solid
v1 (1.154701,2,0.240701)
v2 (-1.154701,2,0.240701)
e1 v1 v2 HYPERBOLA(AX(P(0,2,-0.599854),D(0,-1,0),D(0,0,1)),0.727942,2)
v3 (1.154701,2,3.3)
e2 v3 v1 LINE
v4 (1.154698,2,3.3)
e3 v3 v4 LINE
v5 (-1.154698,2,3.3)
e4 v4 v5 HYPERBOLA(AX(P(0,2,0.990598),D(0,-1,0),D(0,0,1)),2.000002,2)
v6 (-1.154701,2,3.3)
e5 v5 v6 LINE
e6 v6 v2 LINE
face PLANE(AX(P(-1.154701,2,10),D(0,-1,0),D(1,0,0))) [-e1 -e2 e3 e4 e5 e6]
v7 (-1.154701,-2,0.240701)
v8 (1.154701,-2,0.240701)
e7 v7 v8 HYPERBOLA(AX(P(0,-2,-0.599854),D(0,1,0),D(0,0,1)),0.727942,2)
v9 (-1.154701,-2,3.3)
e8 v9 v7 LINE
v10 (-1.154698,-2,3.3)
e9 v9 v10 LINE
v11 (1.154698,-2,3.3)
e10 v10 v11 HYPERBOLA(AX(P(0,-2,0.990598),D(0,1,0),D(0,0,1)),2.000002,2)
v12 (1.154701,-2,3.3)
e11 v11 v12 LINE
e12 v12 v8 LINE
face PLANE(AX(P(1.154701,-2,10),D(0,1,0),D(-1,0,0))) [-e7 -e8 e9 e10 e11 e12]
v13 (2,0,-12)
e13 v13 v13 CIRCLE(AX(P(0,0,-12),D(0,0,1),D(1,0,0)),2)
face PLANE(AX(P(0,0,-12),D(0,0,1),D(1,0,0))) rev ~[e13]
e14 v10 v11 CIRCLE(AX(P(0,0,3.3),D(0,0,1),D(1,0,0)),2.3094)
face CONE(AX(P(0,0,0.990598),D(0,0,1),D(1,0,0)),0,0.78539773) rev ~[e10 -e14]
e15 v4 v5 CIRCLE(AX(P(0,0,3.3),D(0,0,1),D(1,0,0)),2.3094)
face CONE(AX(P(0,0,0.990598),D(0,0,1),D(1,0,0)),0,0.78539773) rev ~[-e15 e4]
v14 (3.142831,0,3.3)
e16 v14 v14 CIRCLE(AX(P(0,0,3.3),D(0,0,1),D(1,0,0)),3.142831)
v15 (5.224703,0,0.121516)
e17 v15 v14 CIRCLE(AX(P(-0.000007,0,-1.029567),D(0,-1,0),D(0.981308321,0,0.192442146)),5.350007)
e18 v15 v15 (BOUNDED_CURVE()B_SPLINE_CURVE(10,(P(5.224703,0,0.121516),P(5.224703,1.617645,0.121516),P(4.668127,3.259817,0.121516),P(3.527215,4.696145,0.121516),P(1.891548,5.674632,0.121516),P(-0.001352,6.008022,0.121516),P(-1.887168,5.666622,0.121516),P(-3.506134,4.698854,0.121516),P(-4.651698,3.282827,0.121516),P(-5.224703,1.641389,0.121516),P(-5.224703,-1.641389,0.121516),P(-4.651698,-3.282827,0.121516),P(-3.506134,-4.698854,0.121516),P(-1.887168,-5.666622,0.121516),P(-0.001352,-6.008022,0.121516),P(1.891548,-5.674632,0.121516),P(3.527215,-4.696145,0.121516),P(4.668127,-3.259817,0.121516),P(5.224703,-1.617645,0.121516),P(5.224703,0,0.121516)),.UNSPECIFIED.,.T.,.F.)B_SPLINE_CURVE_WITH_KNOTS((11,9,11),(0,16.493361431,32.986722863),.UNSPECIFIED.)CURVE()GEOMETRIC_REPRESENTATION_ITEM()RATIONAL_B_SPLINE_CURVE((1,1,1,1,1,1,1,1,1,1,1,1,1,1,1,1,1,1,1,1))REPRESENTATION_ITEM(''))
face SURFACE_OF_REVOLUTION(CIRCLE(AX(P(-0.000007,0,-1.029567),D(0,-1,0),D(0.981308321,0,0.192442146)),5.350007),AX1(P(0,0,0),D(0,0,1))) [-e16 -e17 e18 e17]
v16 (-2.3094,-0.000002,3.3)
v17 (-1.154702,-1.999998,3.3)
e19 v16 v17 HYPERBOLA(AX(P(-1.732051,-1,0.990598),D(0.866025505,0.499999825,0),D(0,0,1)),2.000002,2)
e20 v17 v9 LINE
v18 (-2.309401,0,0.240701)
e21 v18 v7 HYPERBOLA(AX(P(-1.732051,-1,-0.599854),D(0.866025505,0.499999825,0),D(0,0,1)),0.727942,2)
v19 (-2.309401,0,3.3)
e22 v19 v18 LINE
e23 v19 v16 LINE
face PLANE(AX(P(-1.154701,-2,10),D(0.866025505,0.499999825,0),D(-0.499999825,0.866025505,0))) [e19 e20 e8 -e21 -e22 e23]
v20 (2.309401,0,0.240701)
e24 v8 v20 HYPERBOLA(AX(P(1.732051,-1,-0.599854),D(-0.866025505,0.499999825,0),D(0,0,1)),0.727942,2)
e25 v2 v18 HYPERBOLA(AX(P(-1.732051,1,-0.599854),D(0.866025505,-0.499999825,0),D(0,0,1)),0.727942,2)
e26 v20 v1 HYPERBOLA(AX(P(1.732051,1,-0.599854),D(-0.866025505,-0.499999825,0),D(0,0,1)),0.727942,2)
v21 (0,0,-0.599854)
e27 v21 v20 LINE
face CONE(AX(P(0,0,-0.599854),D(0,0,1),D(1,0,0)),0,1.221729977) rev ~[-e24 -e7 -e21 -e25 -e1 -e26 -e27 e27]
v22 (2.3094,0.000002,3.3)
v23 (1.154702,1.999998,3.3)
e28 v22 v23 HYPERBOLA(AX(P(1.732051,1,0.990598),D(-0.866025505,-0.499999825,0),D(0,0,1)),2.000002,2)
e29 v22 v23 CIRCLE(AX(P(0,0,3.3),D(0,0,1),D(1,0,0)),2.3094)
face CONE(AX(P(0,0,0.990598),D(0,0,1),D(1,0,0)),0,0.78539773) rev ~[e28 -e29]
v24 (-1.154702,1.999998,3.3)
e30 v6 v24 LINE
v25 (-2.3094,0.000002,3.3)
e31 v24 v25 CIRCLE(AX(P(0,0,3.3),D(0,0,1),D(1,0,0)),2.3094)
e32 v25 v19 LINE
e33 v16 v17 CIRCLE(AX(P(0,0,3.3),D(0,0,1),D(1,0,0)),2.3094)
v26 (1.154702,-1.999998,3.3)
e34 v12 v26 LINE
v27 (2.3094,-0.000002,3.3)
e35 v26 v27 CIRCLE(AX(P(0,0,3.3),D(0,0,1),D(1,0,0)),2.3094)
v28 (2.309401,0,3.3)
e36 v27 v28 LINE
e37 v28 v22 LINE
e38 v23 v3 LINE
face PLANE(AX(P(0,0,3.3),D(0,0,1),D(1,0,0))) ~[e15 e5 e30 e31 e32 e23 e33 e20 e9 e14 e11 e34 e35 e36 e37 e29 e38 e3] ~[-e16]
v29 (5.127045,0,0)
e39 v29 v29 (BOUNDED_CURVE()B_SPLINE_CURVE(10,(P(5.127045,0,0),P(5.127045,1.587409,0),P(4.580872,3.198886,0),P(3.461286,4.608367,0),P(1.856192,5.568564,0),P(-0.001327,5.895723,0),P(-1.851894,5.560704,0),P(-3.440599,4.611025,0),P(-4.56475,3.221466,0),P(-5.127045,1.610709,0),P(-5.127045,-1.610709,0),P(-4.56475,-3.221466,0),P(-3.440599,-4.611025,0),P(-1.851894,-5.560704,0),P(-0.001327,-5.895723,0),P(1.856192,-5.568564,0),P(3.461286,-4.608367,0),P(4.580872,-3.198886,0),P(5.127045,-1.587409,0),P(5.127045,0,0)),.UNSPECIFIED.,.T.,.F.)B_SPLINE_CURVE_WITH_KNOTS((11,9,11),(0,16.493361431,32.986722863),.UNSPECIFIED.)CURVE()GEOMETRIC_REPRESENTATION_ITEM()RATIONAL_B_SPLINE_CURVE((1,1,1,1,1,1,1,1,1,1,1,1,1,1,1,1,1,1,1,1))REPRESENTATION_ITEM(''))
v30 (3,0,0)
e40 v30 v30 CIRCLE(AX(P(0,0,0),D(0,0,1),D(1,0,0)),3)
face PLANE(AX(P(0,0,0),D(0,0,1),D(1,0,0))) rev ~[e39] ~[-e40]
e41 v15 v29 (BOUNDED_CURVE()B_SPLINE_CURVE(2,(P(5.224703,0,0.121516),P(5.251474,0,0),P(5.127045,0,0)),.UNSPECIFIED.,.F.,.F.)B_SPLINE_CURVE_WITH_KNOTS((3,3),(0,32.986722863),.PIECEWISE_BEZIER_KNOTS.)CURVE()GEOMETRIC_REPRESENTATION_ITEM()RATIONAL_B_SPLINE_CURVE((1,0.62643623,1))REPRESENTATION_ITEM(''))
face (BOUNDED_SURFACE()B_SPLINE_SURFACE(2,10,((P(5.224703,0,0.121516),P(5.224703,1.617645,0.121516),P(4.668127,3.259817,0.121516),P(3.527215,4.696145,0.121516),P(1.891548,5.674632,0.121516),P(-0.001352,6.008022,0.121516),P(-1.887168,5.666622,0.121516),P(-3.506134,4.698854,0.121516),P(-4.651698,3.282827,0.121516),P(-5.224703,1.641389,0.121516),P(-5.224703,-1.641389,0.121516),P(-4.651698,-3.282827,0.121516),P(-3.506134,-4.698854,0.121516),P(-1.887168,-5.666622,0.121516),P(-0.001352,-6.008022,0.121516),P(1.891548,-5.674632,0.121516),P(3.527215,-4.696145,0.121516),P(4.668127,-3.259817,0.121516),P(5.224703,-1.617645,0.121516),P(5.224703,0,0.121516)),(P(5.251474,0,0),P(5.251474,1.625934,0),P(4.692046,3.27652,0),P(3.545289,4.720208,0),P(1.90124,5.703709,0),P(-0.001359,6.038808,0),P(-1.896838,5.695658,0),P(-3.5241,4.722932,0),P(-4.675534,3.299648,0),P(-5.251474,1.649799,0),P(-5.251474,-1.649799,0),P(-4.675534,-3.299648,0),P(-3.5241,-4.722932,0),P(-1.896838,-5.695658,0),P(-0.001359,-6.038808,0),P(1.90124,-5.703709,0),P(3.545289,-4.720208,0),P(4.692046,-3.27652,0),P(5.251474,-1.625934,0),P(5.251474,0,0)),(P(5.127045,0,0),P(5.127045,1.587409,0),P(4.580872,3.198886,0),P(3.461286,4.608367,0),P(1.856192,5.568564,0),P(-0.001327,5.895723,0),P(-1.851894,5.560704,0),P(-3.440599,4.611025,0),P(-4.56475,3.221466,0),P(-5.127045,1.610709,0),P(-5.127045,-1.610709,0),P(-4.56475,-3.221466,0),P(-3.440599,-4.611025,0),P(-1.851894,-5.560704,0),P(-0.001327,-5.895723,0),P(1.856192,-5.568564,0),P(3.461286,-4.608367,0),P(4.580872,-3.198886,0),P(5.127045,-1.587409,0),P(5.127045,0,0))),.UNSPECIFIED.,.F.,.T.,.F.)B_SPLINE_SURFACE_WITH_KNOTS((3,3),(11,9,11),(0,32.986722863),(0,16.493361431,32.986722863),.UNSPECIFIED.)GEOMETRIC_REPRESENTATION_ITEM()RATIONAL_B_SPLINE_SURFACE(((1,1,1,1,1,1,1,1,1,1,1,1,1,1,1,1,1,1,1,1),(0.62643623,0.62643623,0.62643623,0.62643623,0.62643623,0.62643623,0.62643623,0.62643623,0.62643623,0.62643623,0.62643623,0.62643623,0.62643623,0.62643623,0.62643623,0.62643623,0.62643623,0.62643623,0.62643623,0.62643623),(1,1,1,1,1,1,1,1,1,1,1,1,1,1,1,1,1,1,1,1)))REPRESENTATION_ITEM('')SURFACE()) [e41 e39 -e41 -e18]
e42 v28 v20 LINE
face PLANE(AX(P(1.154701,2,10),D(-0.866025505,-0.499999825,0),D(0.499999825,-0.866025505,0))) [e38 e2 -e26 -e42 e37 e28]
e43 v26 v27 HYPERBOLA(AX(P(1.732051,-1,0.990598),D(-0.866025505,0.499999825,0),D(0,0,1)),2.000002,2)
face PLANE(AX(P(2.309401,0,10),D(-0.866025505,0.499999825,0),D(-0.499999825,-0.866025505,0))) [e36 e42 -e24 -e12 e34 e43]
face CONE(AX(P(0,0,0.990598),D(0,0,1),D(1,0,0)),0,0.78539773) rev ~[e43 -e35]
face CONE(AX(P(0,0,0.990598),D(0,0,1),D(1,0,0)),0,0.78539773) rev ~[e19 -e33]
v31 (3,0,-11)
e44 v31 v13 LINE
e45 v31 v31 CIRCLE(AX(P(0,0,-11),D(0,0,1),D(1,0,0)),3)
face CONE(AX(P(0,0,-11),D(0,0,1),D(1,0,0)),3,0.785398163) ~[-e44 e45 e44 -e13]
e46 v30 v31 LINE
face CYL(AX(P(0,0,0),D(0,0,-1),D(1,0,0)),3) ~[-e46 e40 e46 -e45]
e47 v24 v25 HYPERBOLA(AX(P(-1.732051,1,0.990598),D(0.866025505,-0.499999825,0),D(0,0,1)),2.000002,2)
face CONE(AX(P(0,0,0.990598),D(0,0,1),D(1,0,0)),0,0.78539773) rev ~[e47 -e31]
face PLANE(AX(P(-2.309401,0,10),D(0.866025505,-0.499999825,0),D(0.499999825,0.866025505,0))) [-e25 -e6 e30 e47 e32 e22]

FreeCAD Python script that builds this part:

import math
import FreeCAD as App
import Part
import Sketcher

V = App.Vector
Q = App.Units.Quantity


def edges_at(feature, points):
    """Names of the edges that pass closest to the given points."""
    edges = feature.Shape.Edges
    near = lambda p: min(range(len(edges)), key=lambda i: edges[i].distToShape(Part.Vertex(*p))[0])
    return sorted({f"Edge{near(p) + 1}" for p in points})


def add_polygon(sketch, points):
    """Adds a closed chain of lines whose ends are joined by coincident constraints."""
    first, n = sketch.GeometryCount, len(points)
    for a, b in zip(points, points[1:] + points[:1]):
        sketch.addGeometry(Part.LineSegment(App.Vector(*a, 0), App.Vector(*b, 0)), False)
    for i in range(n):
        sketch.addConstraint(Sketcher.Constraint("Coincident", first + i, 2, first + (i + 1) % n, 1))

doc = App.newDocument("Part")
body = doc.addObject("PartDesign::Body", "Body")

sketch1 = doc.addObject("Sketcher::SketchObject", "Sketch")
body.addObject(sketch1)
sketch1.AttachmentSupport = (doc.XZ_Plane, [""])
sketch1.MapMode = "FlatFace"
add_polygon(sketch1, [(0, -0.599854), (5, 1.22), (5, 10), (0, 10)])
sketch1.addConstraint([
    Sketcher.Constraint("Vertical", 1),
    Sketcher.Constraint("Horizontal", 2),
    Sketcher.Constraint("Vertical", 3),
    Sketcher.Constraint("PointOnObject", 2, 2, -2),
    Sketcher.Constraint("DistanceX", 2, 2, 2, 1, 5.0),
    Sketcher.Constraint("DistanceY", -1, 1, 1, 2, 10.0),
    Sketcher.Constraint("DistanceY", 1, 1, 1, 2, 8.78),
    Sketcher.Constraint("Distance", 0, 5.32089),
])
revolution = doc.addObject("PartDesign::Revolution", "Revolution")
body.addObject(revolution)
revolution.Profile = sketch1
revolution.ReferenceAxis = (sketch1, ["V_Axis"])
revolution.Angle = 360

sketch2 = doc.addObject("Sketcher::SketchObject", "Sketch001")
body.addObject(sketch2)
sketch2.AttachmentSupport = (doc.XY_Plane, [""])
sketch2.MapMode = "FlatFace"
sketch2.AttachmentOffset = App.Placement(V(0, 0, 10), App.Rotation())
sketch2.addGeometry(Part.Circle(V(0, 0, 0), V(0, 0, 1), 6), False)
add_polygon(sketch2, [(2.309401, 0), (1.154701, -2), (-1.154701, -2), (-2.309401, 0), (-1.154701, 2), (1.154701, 2)])
sketch2.addConstraint([
    Sketcher.Constraint("Horizontal", 2),
    Sketcher.Constraint("Horizontal", 5),
    Sketcher.Constraint("Coincident", 0, 3, -1, 1),
    Sketcher.Constraint("Symmetric", 1, 2, 4, 2, -1, 1),
    Sketcher.Constraint("Symmetric", 3, 2, 6, 2, -1, 1),
    Sketcher.Constraint("PointOnObject", 3, 2, -1),
    Sketcher.Constraint("Parallel", 3, 6),
    Sketcher.Constraint("Vertical", 2, 2, 4, 2),
    Sketcher.Constraint("Diameter", 0, 12.0),
    Sketcher.Constraint("Angle", 1, Q("-119.999988 deg")),
    Sketcher.Constraint("DistanceY", 1, 2, -1, 1, 2.0),
    Sketcher.Constraint("DistanceX", 2, 2, 2, 1, 2.309402),
])
pocket1 = doc.addObject("PartDesign::Pocket", "Pocket")
body.addObject(pocket1)
pocket1.Profile = sketch2
pocket1.Type = "ThroughAll"
body2 = doc.addObject("PartDesign::Body", "Body001")

sketch3 = doc.addObject("Sketcher::SketchObject", "Sketch002")
body2.addObject(sketch3)
sketch3.AttachmentSupport = (doc.getObject("XZ_Plane001"), [""])
sketch3.MapMode = "FlatFace"
sketch3.addGeometry([
    Part.LineSegment(V(3.142831, 3.3, 0), V(2.3094, 3.3, 0)),
    Part.LineSegment(V(2.3094, 3.3, 0), V(0, 0.990598, 0)),
    Part.LineSegment(V(0, 0.990598, 0), V(0, -12, 0)),
    Part.LineSegment(V(0, -12, 0), V(3, -12, 0)),
    Part.LineSegment(V(3, -12, 0), V(3, 0, 0)),
    Part.LineSegment(V(3, 0, 0), V(5.25, 0, 0)),
    Part.ArcOfCircle(Part.Circle(V(-0.000007, -1.029567, 0), V(0, 0, 1), 5.350007), math.radians(11.095339), math.radians(54.024059)),
], False)
sketch3.addConstraint([
    Sketcher.Constraint("Coincident", 0, 2, 1, 1),
    Sketcher.Constraint("Coincident", 1, 2, 2, 1),
    Sketcher.Constraint("Coincident", 2, 2, 3, 1),
    Sketcher.Constraint("Coincident", 3, 2, 4, 1),
    Sketcher.Constraint("Coincident", 4, 2, 5, 1),
    Sketcher.Constraint("Coincident", 5, 2, 6, 1),
    Sketcher.Constraint("Coincident", 6, 2, 0, 1),
    Sketcher.Constraint("Horizontal", 0),
    Sketcher.Constraint("Vertical", 2),
    Sketcher.Constraint("Horizontal", 3),
    Sketcher.Constraint("Vertical", 4),
    Sketcher.Constraint("Horizontal", 5),
    Sketcher.Constraint("PointOnObject", 1, 2, -2),
    Sketcher.Constraint("PointOnObject", 4, 2, -1),
    Sketcher.Constraint("DistanceX", 3, 1, 3, 2, 3.0),
    Sketcher.Constraint("DistanceY", 4, 1, 4, 2, 12.0),
    Sketcher.Constraint("DistanceX", 5, 1, 5, 2, 2.25),
    Sketcher.Constraint("DistanceY", -1, 1, 0, 2, 3.3),
    Sketcher.Constraint("Radius", 6, 5.350007),
    Sketcher.Constraint("DistanceX", 0, 2, 0, 1, 0.833431),
    Sketcher.Constraint("DistanceX", -1, 1, 0, 2, 2.3094),
    Sketcher.Constraint("DistanceY", 1, 2, 0, 2, 2.309402),
])
revolution2 = doc.addObject("PartDesign::Revolution", "Revolution001")
body2.addObject(revolution2)
revolution2.Profile = sketch3
revolution2.ReferenceAxis = (sketch3, ["V_Axis"])
revolution2.Angle = 360
doc.recompute()

boolean = doc.addObject("PartDesign::Boolean", "Boolean")
body2.addObject(boolean)
boolean.Type = "Cut"
boolean.addObjects([body])
doc.recompute()

fillet = doc.addObject("PartDesign::Fillet", "Fillet")
body2.addObject(fillet)
fillet.Base = (boolean, edges_at(boolean, [(-5.25, 0, 0)]))
fillet.Radius = 0.1
doc.recompute()

chamfer = doc.addObject("PartDesign::Chamfer", "Chamfer")
body2.addObject(chamfer)
chamfer.Base = (fillet, edges_at(fillet, [(-3, 0, -12)]))
chamfer.Size = 1

doc.recompute()
